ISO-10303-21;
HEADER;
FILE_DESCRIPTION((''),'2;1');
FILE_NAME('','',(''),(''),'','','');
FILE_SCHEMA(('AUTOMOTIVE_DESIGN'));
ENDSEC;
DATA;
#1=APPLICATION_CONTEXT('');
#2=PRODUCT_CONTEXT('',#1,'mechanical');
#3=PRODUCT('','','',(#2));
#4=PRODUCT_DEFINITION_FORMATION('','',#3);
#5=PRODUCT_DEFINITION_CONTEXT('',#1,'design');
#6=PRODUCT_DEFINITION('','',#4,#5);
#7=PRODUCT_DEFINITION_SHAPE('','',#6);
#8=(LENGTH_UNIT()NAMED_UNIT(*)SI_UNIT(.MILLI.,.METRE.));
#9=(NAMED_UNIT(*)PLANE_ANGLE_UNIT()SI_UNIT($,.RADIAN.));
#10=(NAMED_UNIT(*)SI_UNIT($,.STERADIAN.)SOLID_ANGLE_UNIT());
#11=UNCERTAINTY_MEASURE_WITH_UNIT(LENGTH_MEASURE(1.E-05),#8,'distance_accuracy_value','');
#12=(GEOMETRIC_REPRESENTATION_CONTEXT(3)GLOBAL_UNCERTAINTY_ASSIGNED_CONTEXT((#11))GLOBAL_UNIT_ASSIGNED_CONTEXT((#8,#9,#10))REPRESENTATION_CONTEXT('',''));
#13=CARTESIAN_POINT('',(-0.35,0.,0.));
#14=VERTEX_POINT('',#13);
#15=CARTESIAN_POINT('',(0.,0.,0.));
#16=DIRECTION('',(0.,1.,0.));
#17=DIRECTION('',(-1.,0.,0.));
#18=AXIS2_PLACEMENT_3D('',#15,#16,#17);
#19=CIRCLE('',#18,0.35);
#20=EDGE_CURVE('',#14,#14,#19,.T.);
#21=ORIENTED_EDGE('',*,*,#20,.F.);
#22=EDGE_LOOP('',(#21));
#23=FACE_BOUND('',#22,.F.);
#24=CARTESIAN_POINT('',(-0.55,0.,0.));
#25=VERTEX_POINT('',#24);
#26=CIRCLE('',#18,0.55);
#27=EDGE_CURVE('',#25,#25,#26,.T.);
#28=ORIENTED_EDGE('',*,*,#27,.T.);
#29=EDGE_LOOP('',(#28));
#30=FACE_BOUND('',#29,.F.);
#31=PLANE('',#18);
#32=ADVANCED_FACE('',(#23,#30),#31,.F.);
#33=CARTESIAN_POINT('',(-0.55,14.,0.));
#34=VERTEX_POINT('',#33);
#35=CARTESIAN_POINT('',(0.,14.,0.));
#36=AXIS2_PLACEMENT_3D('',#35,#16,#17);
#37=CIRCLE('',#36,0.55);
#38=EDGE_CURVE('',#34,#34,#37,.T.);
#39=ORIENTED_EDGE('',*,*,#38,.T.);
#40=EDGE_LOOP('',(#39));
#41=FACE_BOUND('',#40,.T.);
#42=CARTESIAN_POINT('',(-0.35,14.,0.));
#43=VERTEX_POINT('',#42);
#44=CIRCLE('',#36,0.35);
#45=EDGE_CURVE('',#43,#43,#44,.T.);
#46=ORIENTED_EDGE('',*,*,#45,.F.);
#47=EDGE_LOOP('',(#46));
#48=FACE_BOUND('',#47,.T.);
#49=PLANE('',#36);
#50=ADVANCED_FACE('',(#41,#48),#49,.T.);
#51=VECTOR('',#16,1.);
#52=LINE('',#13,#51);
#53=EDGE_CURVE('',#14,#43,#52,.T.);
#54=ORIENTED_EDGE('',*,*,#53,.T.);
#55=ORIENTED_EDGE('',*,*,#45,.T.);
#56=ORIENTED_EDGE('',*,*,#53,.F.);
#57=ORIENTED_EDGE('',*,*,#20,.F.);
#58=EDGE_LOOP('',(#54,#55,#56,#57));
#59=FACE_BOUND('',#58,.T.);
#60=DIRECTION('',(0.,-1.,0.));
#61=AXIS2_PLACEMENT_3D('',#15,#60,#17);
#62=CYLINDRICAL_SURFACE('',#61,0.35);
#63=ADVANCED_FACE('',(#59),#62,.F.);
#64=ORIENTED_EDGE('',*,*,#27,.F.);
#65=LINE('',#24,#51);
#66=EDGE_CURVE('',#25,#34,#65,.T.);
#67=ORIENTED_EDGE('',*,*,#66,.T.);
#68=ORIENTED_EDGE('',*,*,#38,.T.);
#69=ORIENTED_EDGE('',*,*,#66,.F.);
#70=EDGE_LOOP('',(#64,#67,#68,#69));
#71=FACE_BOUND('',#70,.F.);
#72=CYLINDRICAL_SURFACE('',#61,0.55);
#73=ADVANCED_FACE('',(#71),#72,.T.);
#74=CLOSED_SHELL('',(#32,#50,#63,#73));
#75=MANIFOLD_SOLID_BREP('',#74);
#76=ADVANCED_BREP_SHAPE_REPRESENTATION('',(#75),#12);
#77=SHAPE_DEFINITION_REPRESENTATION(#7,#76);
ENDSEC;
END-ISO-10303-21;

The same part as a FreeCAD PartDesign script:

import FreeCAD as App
import Part
import Sketcher
Q = App.Units.Quantity

doc = App.newDocument("Part")
body = doc.addObject("PartDesign::Body", "Body")

# Sketch on XZ plane
sketch1 = body.newObject("Sketcher::SketchObject", "Sketch")
sketch1.AttachmentSupport = (doc.getObject("XZ_Plane"), [""])
sketch1.MapMode = "FlatFace"
sketch1.addGeometry(Part.Circle(App.Vector(0, 0, 0), App.Vector(0, 0, 1), 0.55), False)
sketch1.addGeometry(Part.Circle(App.Vector(0, 0, 0), App.Vector(0, 0, 1), 0.35), False)
sketch1.addConstraint(Sketcher.Constraint("Coincident", 0, 3, -1, 1))
sketch1.addConstraint(Sketcher.Constraint("Coincident", 1, 3, -1, 1))
sketch1.addConstraint(Sketcher.Constraint("Diameter", 0, Q("1.1 mm")))
sketch1.addConstraint(Sketcher.Constraint("Diameter", 1, Q("0.7 mm")))
pad1 = body.newObject("PartDesign::Pad", "Pad")
pad1.Profile = sketch1
pad1.Length = 14
pad1.Reversed = True

doc.recompute()
